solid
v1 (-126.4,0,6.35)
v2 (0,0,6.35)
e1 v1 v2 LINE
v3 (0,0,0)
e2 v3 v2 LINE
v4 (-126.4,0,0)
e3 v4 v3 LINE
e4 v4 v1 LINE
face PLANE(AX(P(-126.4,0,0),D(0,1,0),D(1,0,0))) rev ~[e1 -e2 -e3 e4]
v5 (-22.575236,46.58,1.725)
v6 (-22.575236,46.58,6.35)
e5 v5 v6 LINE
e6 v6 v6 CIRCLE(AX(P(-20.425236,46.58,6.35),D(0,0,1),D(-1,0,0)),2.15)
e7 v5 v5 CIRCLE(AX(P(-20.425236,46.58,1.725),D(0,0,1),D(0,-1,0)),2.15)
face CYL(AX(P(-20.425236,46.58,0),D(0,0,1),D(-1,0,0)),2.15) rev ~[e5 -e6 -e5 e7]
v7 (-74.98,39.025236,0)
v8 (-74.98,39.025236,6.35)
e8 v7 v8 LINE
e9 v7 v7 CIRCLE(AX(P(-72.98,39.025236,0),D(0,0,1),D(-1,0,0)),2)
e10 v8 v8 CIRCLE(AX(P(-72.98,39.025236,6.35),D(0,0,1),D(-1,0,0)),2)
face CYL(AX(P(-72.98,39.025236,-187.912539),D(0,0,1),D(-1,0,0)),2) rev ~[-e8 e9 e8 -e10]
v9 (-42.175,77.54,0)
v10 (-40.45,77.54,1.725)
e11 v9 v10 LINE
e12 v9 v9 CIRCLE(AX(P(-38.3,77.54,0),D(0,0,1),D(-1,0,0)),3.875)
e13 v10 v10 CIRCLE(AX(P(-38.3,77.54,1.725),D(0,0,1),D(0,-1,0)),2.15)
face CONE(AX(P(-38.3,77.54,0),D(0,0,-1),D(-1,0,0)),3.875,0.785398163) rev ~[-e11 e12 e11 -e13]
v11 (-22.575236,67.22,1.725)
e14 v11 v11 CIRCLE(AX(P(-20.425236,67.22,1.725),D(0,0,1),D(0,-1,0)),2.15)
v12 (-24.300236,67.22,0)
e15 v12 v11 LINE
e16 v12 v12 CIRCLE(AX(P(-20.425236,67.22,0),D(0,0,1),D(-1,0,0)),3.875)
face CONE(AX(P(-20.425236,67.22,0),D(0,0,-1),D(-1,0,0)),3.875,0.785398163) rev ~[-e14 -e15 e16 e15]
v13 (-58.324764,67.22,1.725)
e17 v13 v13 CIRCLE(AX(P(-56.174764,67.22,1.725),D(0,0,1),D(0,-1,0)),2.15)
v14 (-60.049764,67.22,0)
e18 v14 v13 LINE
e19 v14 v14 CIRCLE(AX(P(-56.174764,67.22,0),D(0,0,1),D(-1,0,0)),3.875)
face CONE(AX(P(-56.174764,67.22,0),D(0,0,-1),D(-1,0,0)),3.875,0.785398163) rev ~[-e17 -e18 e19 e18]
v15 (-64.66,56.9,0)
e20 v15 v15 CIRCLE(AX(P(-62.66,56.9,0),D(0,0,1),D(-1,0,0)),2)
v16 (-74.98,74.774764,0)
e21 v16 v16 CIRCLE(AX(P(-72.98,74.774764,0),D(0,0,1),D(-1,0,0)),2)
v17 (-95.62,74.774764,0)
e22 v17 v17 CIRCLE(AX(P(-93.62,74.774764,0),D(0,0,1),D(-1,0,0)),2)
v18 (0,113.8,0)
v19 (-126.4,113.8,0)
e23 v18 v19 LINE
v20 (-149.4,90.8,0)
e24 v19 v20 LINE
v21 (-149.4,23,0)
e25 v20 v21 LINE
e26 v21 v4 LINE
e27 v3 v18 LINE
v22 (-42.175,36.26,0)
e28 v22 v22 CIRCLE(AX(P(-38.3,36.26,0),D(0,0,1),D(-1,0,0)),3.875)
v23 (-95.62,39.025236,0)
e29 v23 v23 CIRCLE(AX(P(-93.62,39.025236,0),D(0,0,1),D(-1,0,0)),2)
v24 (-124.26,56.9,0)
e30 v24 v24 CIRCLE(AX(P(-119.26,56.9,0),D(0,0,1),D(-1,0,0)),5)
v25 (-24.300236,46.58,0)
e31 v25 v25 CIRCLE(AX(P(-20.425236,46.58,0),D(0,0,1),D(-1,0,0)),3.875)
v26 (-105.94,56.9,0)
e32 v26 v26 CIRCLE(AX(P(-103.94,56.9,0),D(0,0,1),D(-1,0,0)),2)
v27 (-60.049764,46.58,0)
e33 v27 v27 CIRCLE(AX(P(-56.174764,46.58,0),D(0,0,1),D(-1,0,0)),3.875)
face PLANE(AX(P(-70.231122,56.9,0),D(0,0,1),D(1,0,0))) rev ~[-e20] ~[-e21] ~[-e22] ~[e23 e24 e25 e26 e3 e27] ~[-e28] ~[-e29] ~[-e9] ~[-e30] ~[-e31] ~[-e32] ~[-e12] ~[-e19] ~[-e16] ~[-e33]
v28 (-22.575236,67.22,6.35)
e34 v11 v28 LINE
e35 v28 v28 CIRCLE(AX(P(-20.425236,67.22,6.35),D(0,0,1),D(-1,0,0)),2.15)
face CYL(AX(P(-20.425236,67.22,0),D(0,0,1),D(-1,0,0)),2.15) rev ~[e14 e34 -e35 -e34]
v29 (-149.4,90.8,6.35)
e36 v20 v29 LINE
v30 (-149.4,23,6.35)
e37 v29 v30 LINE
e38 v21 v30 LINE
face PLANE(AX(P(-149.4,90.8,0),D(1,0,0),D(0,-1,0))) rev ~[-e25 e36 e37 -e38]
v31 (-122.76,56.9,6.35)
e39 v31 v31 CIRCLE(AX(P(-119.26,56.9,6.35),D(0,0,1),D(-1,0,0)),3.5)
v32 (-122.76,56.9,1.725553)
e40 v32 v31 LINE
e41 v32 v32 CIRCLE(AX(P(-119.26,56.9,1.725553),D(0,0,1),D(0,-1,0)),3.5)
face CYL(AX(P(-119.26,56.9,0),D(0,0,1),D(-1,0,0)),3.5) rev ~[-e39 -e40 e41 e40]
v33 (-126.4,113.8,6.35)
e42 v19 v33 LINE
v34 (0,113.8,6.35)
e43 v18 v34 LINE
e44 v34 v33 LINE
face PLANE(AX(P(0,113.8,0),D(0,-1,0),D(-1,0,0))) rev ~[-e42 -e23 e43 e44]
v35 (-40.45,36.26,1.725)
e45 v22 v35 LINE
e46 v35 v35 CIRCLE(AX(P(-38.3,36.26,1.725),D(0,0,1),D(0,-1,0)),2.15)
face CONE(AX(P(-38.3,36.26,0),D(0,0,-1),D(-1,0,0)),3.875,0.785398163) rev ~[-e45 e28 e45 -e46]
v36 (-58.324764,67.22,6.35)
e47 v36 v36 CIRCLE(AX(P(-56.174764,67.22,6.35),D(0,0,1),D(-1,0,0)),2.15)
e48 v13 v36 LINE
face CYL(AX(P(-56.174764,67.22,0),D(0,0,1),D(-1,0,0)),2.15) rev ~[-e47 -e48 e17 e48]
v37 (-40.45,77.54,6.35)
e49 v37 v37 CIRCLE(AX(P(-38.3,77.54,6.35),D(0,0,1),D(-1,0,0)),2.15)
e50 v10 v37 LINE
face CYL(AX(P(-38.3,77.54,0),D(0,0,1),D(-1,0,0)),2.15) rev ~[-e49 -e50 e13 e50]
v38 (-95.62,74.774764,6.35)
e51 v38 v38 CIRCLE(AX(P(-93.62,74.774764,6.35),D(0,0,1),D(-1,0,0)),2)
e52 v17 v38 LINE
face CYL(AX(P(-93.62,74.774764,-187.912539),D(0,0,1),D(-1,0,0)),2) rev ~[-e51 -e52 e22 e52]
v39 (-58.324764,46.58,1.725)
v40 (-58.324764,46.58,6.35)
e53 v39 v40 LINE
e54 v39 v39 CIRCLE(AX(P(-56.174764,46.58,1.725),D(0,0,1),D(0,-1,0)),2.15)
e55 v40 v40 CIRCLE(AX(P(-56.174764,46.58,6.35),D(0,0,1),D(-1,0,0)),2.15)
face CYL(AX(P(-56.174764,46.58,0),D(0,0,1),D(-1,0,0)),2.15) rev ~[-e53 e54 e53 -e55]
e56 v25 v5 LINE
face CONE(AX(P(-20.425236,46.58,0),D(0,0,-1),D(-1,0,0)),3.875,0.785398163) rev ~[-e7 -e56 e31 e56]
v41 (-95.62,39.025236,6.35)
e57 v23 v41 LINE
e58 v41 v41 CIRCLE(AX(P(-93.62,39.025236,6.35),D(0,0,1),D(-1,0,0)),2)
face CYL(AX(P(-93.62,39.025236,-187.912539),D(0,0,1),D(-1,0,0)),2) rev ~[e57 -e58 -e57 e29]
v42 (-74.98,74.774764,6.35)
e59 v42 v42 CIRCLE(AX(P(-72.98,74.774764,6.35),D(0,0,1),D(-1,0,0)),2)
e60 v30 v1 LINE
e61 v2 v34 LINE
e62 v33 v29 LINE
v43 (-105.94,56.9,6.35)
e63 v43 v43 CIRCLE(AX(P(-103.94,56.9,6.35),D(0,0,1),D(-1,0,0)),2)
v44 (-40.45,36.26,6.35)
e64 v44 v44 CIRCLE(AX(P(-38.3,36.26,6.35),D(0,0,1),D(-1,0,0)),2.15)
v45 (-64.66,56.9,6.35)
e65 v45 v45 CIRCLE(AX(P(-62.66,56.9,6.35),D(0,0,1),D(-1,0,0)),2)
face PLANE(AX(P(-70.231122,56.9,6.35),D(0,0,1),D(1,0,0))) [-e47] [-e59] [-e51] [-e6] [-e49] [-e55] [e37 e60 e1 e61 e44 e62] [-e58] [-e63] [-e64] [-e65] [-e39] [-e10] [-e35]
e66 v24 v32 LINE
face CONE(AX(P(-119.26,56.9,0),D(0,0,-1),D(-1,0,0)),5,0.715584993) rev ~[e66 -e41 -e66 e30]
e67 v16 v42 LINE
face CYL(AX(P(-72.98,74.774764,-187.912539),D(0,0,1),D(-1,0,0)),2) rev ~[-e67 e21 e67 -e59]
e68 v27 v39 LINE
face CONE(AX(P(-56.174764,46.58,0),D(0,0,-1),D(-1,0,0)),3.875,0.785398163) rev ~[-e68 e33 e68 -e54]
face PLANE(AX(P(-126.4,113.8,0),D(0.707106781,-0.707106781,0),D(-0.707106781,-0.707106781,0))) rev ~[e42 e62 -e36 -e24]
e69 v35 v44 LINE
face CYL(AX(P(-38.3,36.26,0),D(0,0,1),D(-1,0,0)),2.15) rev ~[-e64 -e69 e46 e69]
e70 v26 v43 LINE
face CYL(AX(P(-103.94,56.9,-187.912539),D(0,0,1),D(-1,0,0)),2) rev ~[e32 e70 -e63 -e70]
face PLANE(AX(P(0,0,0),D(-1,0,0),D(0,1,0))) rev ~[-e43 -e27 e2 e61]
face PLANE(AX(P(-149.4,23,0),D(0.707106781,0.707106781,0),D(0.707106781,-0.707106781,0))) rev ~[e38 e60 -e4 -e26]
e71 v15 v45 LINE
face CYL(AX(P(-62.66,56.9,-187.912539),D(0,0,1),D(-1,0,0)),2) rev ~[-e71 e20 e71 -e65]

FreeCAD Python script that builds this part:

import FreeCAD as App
import Part
import Sketcher

V = App.Vector

doc = App.newDocument("Part")
params = doc.addObject("Spreadsheet::Sheet", "Params")
for row, (alias, value) in enumerate([
    ("sketch1_width", "126.4 mm"),
    ("sketch1_height", "113.8 mm"),
    ("sketch1_height2", "67.8 mm"),
    ("pad1_length", "6.35 mm"),
    ("sketch2_diameter", "7 mm"),
    ("hole_diameter", "7 mm"),
    ("hole_csink_diameter", "10 mm"),
    ("sketch3_diameter", "4.3 mm"),
    ("hole2_diameter", "4.3 mm"),
    ("hole2_csink_diameter", "7.75 mm"),
    ("sketch4_diameter", "4 mm"),
    ("hole3_diameter", "4 mm"),
], start=1):
    params.set(f"A{row}", alias)
    params.set(f"B{row}", "=" + value)
    params.setAlias(f"B{row}", alias)

body = doc.addObject("PartDesign::Body", "Body")

# Sketch on XY plane
sketch1 = body.newObject("Sketcher::SketchObject", "Sketch")
sketch1.AttachmentSupport = (doc.getObject("XY_Plane"), [""])
sketch1.MapMode = "FlatFace"
sketch1.addGeometry(Part.LineSegment(V(-149, 23, 0), V(-126, 0, 0)), False)
sketch1.addGeometry(Part.LineSegment(V(-126, 0, 0), V(0, 0, 0)), False)
sketch1.addGeometry(Part.LineSegment(V(0, 0, 0), V(0, 114, 0)), False)
sketch1.addGeometry(Part.LineSegment(V(0, 114, 0), V(-126, 114, 0)), False)
sketch1.addGeometry(Part.LineSegment(V(-126, 114, 0), V(-149, 91, 0)), False)
sketch1.addGeometry(Part.LineSegment(V(-149, 91, 0), V(-149, 23, 0)), False)
sketch1.addConstraint(Sketcher.Constraint("Coincident", 0, 2, 1, 1))
sketch1.addConstraint(Sketcher.Constraint("Coincident", 1, 2, 2, 1))
sketch1.addConstraint(Sketcher.Constraint("Coincident", 2, 2, 3, 1))
sketch1.addConstraint(Sketcher.Constraint("Coincident", 3, 2, 4, 1))
sketch1.addConstraint(Sketcher.Constraint("Coincident", 4, 2, 5, 1))
sketch1.addConstraint(Sketcher.Constraint("Coincident", 5, 2, 0, 1))
sketch1.addConstraint(Sketcher.Constraint("Horizontal", 1))
sketch1.addConstraint(Sketcher.Constraint("Vertical", 2))
sketch1.addConstraint(Sketcher.Constraint("Horizontal", 3))
sketch1.addConstraint(Sketcher.Constraint("Vertical", 5))
sketch1.addConstraint(Sketcher.Constraint("Coincident", 1, 2, -1, 1))
sketch1.addConstraint(Sketcher.Constraint("Perpendicular", 0, 4))
sketch1.addConstraint(Sketcher.Constraint("Vertical", 0, 2, 3, 2))
sketch1.addConstraint(Sketcher.Constraint("Equal", 0, 4))
sketch1.addConstraint(Sketcher.Constraint("DistanceX", 1, 1, 1, 2, 126.4))
sketch1.addConstraint(Sketcher.Constraint("DistanceY", 2, 1, 2, 2, 113.8))
sketch1.addConstraint(Sketcher.Constraint("DistanceY", 5, 2, 5, 1, 67.8))
sketch1.setExpression("Constraints[14]", "Params.sketch1_width")
sketch1.setExpression("Constraints[15]", "Params.sketch1_height")
sketch1.setExpression("Constraints[16]", "Params.sketch1_height2")
pad1 = body.newObject("PartDesign::Pad", "Pad")
pad1.Profile = sketch1
pad1.setExpression("Length", "Params.pad1_length")

# Sketch on XY plane
sketch2 = body.newObject("Sketcher::SketchObject", "Sketch001")
sketch2.AttachmentSupport = (doc.getObject("XY_Plane"), [""])
sketch2.MapMode = "FlatFace"
sketch2.addGeometry(Part.Circle(V(-119.3, 56.9, 0), V(0, 0, 1), 3.5), False)
sketch2.addConstraint(Sketcher.Constraint("Diameter", 0, 7.0))
sketch2.addConstraint(Sketcher.Constraint("DistanceY", -1, 1, 0, 3, 56.9))
sketch2.addConstraint(Sketcher.Constraint("DistanceX", 0, 3, -1, 1, 119.26))
sketch2.setExpression("Constraints[0]", "Params.sketch2_diameter")
doc.recompute()
hole = body.newObject("PartDesign::Hole", "Hole")
hole.Profile = sketch2
hole.ThreadType = "None"
hole.setExpression("Diameter", "Params.hole_diameter")
hole.DepthType = "ThroughAll"
hole.HoleCutType = "Countersink"
hole.setExpression("HoleCutDiameter", "Params.hole_csink_diameter")
hole.HoleCutCountersinkAngle = 82
hole.Reversed = True

# Sketch on XY plane
sketch3 = body.newObject("Sketcher::SketchObject", "Sketch002")
sketch3.AttachmentSupport = (doc.getObject("XY_Plane"), [""])
sketch3.MapMode = "FlatFace"
sketch3.addGeometry(Part.Circle(V(-38.3, 36.3, 0), V(0, 0, 1), 2.1), False)
sketch3.addGeometry(Part.Circle(V(-20.4, 46.6, 0), V(0, 0, 1), 2.1), False)
sketch3.addGeometry(Part.Circle(V(-20.4, 67.2, 0), V(0, 0, 1), 2.1), False)
sketch3.addGeometry(Part.Circle(V(-38.3, 77.5, 0), V(0, 0, 1), 2.1), False)
sketch3.addGeometry(Part.Circle(V(-56.2, 67.2, 0), V(0, 0, 1), 2.1), False)
sketch3.addGeometry(Part.Circle(V(-56.2, 46.6, 0), V(0, 0, 1), 2.1), False)
sketch3.addConstraint(Sketcher.Constraint("Equal", 0, 1))
sketch3.addConstraint(Sketcher.Constraint("Equal", 1, 2))
sketch3.addConstraint(Sketcher.Constraint("Equal", 2, 3))
sketch3.addConstraint(Sketcher.Constraint("Equal", 3, 4))
sketch3.addConstraint(Sketcher.Constraint("Equal", 4, 5))
sketch3.addConstraint(Sketcher.Constraint("Horizontal", 2, 3, 4, 3))
sketch3.addConstraint(Sketcher.Constraint("Horizontal", 1, 3, 5, 3))
sketch3.addConstraint(Sketcher.Constraint("Vertical", 1, 3, 2, 3))
sketch3.addConstraint(Sketcher.Constraint("Vertical", 0, 3, 3, 3))
sketch3.addConstraint(Sketcher.Constraint("Vertical", 4, 3, 5, 3))
sketch3.addConstraint(Sketcher.Constraint("Diameter", 0, 4.3))
sketch3.addConstraint(Sketcher.Constraint("DistanceX", 0, 3, -1, 1, 38.3))
sketch3.addConstraint(Sketcher.Constraint("DistanceY", -1, 1, 0, 3, 36.26))
sketch3.addConstraint(Sketcher.Constraint("DistanceY", -1, 1, 1, 3, 46.58))
sketch3.addConstraint(Sketcher.Constraint("DistanceY", -1, 1, 2, 3, 67.22))
sketch3.addConstraint(Sketcher.Constraint("DistanceY", -1, 1, 3, 3, 77.54))
sketch3.addConstraint(Sketcher.Constraint("DistanceX", 4, 3, 2, 3, 35.749529))
sketch3.addConstraint(Sketcher.Constraint("DistanceX", 1, 3, -1, 1, 20.425236))
sketch3.setExpression("Constraints[10]", "Params.sketch3_diameter")
doc.recompute()
hole2 = body.newObject("PartDesign::Hole", "Hole001")
hole2.Profile = sketch3
hole2.ThreadType = "None"
hole2.setExpression("Diameter", "Params.hole2_diameter")
hole2.DepthType = "ThroughAll"
hole2.HoleCutType = "Countersink"
hole2.setExpression("HoleCutDiameter", "Params.hole2_csink_diameter")
hole2.HoleCutCountersinkAngle = 90
hole2.Reversed = True

# Sketch on XY plane
sketch4 = body.newObject("Sketcher::SketchObject", "Sketch003")
sketch4.AttachmentSupport = (doc.getObject("XY_Plane"), [""])
sketch4.MapMode = "FlatFace"
sketch4.addGeometry(Part.Circle(V(-103.9, 56.9, 0), V(0, 0, 1), 2), False)
sketch4.addGeometry(Part.Circle(V(-93.6, 39, 0), V(0, 0, 1), 2), False)
sketch4.addGeometry(Part.Circle(V(-73, 39, 0), V(0, 0, 1), 2), False)
sketch4.addGeometry(Part.Circle(V(-62.7, 56.9, 0), V(0, 0, 1), 2), False)
sketch4.addGeometry(Part.Circle(V(-73, 74.8, 0), V(0, 0, 1), 2), False)
sketch4.addGeometry(Part.Circle(V(-93.6, 74.8, 0), V(0, 0, 1), 2), False)
sketch4.addConstraint(Sketcher.Constraint("Equal", 0, 1))
sketch4.addConstraint(Sketcher.Constraint("Equal", 1, 2))
sketch4.addConstraint(Sketcher.Constraint("Equal", 2, 3))
sketch4.addConstraint(Sketcher.Constraint("Equal", 3, 4))
sketch4.addConstraint(Sketcher.Constraint("Equal", 4, 5))
sketch4.addConstraint(Sketcher.Constraint("Horizontal", 1, 3, 2, 3))
sketch4.addConstraint(Sketcher.Constraint("Horizontal", 0, 3, 3, 3))
sketch4.addConstraint(Sketcher.Constraint("Horizontal", 4, 3, 5, 3))
sketch4.addConstraint(Sketcher.Constraint("Vertical", 2, 3, 4, 3))
sketch4.addConstraint(Sketcher.Constraint("Vertical", 1, 3, 5, 3))
sketch4.addConstraint(Sketcher.Constraint("Diameter", 0, 4.0))
sketch4.addConstraint(Sketcher.Constraint("DistanceY", -1, 1, 0, 3, 56.9))
sketch4.addConstraint(Sketcher.Constraint("DistanceX", 0, 3, -1, 1, 103.94))
sketch4.addConstraint(Sketcher.Constraint("DistanceX", 1, 3, -1, 1, 93.62))
sketch4.addConstraint(Sketcher.Constraint("DistanceX", 2, 3, -1, 1, 72.98))
sketch4.addConstraint(Sketcher.Constraint("DistanceX", 3, 3, -1, 1, 62.66))
sketch4.addConstraint(Sketcher.Constraint("DistanceY", 2, 3, 4, 3, 35.749529))
sketch4.addConstraint(Sketcher.Constraint("DistanceY", -1, 1, 1, 3, 39.025236))
sketch4.setExpression("Constraints[10]", "Params.sketch4_diameter")
doc.recompute()
hole3 = body.newObject("PartDesign::Hole", "Hole002")
hole3.Profile = sketch4
hole3.ThreadType = "None"
hole3.setExpression("Diameter", "Params.hole3_diameter")
hole3.DepthType = "ThroughAll"
hole3.Reversed = True

doc.recompute()
